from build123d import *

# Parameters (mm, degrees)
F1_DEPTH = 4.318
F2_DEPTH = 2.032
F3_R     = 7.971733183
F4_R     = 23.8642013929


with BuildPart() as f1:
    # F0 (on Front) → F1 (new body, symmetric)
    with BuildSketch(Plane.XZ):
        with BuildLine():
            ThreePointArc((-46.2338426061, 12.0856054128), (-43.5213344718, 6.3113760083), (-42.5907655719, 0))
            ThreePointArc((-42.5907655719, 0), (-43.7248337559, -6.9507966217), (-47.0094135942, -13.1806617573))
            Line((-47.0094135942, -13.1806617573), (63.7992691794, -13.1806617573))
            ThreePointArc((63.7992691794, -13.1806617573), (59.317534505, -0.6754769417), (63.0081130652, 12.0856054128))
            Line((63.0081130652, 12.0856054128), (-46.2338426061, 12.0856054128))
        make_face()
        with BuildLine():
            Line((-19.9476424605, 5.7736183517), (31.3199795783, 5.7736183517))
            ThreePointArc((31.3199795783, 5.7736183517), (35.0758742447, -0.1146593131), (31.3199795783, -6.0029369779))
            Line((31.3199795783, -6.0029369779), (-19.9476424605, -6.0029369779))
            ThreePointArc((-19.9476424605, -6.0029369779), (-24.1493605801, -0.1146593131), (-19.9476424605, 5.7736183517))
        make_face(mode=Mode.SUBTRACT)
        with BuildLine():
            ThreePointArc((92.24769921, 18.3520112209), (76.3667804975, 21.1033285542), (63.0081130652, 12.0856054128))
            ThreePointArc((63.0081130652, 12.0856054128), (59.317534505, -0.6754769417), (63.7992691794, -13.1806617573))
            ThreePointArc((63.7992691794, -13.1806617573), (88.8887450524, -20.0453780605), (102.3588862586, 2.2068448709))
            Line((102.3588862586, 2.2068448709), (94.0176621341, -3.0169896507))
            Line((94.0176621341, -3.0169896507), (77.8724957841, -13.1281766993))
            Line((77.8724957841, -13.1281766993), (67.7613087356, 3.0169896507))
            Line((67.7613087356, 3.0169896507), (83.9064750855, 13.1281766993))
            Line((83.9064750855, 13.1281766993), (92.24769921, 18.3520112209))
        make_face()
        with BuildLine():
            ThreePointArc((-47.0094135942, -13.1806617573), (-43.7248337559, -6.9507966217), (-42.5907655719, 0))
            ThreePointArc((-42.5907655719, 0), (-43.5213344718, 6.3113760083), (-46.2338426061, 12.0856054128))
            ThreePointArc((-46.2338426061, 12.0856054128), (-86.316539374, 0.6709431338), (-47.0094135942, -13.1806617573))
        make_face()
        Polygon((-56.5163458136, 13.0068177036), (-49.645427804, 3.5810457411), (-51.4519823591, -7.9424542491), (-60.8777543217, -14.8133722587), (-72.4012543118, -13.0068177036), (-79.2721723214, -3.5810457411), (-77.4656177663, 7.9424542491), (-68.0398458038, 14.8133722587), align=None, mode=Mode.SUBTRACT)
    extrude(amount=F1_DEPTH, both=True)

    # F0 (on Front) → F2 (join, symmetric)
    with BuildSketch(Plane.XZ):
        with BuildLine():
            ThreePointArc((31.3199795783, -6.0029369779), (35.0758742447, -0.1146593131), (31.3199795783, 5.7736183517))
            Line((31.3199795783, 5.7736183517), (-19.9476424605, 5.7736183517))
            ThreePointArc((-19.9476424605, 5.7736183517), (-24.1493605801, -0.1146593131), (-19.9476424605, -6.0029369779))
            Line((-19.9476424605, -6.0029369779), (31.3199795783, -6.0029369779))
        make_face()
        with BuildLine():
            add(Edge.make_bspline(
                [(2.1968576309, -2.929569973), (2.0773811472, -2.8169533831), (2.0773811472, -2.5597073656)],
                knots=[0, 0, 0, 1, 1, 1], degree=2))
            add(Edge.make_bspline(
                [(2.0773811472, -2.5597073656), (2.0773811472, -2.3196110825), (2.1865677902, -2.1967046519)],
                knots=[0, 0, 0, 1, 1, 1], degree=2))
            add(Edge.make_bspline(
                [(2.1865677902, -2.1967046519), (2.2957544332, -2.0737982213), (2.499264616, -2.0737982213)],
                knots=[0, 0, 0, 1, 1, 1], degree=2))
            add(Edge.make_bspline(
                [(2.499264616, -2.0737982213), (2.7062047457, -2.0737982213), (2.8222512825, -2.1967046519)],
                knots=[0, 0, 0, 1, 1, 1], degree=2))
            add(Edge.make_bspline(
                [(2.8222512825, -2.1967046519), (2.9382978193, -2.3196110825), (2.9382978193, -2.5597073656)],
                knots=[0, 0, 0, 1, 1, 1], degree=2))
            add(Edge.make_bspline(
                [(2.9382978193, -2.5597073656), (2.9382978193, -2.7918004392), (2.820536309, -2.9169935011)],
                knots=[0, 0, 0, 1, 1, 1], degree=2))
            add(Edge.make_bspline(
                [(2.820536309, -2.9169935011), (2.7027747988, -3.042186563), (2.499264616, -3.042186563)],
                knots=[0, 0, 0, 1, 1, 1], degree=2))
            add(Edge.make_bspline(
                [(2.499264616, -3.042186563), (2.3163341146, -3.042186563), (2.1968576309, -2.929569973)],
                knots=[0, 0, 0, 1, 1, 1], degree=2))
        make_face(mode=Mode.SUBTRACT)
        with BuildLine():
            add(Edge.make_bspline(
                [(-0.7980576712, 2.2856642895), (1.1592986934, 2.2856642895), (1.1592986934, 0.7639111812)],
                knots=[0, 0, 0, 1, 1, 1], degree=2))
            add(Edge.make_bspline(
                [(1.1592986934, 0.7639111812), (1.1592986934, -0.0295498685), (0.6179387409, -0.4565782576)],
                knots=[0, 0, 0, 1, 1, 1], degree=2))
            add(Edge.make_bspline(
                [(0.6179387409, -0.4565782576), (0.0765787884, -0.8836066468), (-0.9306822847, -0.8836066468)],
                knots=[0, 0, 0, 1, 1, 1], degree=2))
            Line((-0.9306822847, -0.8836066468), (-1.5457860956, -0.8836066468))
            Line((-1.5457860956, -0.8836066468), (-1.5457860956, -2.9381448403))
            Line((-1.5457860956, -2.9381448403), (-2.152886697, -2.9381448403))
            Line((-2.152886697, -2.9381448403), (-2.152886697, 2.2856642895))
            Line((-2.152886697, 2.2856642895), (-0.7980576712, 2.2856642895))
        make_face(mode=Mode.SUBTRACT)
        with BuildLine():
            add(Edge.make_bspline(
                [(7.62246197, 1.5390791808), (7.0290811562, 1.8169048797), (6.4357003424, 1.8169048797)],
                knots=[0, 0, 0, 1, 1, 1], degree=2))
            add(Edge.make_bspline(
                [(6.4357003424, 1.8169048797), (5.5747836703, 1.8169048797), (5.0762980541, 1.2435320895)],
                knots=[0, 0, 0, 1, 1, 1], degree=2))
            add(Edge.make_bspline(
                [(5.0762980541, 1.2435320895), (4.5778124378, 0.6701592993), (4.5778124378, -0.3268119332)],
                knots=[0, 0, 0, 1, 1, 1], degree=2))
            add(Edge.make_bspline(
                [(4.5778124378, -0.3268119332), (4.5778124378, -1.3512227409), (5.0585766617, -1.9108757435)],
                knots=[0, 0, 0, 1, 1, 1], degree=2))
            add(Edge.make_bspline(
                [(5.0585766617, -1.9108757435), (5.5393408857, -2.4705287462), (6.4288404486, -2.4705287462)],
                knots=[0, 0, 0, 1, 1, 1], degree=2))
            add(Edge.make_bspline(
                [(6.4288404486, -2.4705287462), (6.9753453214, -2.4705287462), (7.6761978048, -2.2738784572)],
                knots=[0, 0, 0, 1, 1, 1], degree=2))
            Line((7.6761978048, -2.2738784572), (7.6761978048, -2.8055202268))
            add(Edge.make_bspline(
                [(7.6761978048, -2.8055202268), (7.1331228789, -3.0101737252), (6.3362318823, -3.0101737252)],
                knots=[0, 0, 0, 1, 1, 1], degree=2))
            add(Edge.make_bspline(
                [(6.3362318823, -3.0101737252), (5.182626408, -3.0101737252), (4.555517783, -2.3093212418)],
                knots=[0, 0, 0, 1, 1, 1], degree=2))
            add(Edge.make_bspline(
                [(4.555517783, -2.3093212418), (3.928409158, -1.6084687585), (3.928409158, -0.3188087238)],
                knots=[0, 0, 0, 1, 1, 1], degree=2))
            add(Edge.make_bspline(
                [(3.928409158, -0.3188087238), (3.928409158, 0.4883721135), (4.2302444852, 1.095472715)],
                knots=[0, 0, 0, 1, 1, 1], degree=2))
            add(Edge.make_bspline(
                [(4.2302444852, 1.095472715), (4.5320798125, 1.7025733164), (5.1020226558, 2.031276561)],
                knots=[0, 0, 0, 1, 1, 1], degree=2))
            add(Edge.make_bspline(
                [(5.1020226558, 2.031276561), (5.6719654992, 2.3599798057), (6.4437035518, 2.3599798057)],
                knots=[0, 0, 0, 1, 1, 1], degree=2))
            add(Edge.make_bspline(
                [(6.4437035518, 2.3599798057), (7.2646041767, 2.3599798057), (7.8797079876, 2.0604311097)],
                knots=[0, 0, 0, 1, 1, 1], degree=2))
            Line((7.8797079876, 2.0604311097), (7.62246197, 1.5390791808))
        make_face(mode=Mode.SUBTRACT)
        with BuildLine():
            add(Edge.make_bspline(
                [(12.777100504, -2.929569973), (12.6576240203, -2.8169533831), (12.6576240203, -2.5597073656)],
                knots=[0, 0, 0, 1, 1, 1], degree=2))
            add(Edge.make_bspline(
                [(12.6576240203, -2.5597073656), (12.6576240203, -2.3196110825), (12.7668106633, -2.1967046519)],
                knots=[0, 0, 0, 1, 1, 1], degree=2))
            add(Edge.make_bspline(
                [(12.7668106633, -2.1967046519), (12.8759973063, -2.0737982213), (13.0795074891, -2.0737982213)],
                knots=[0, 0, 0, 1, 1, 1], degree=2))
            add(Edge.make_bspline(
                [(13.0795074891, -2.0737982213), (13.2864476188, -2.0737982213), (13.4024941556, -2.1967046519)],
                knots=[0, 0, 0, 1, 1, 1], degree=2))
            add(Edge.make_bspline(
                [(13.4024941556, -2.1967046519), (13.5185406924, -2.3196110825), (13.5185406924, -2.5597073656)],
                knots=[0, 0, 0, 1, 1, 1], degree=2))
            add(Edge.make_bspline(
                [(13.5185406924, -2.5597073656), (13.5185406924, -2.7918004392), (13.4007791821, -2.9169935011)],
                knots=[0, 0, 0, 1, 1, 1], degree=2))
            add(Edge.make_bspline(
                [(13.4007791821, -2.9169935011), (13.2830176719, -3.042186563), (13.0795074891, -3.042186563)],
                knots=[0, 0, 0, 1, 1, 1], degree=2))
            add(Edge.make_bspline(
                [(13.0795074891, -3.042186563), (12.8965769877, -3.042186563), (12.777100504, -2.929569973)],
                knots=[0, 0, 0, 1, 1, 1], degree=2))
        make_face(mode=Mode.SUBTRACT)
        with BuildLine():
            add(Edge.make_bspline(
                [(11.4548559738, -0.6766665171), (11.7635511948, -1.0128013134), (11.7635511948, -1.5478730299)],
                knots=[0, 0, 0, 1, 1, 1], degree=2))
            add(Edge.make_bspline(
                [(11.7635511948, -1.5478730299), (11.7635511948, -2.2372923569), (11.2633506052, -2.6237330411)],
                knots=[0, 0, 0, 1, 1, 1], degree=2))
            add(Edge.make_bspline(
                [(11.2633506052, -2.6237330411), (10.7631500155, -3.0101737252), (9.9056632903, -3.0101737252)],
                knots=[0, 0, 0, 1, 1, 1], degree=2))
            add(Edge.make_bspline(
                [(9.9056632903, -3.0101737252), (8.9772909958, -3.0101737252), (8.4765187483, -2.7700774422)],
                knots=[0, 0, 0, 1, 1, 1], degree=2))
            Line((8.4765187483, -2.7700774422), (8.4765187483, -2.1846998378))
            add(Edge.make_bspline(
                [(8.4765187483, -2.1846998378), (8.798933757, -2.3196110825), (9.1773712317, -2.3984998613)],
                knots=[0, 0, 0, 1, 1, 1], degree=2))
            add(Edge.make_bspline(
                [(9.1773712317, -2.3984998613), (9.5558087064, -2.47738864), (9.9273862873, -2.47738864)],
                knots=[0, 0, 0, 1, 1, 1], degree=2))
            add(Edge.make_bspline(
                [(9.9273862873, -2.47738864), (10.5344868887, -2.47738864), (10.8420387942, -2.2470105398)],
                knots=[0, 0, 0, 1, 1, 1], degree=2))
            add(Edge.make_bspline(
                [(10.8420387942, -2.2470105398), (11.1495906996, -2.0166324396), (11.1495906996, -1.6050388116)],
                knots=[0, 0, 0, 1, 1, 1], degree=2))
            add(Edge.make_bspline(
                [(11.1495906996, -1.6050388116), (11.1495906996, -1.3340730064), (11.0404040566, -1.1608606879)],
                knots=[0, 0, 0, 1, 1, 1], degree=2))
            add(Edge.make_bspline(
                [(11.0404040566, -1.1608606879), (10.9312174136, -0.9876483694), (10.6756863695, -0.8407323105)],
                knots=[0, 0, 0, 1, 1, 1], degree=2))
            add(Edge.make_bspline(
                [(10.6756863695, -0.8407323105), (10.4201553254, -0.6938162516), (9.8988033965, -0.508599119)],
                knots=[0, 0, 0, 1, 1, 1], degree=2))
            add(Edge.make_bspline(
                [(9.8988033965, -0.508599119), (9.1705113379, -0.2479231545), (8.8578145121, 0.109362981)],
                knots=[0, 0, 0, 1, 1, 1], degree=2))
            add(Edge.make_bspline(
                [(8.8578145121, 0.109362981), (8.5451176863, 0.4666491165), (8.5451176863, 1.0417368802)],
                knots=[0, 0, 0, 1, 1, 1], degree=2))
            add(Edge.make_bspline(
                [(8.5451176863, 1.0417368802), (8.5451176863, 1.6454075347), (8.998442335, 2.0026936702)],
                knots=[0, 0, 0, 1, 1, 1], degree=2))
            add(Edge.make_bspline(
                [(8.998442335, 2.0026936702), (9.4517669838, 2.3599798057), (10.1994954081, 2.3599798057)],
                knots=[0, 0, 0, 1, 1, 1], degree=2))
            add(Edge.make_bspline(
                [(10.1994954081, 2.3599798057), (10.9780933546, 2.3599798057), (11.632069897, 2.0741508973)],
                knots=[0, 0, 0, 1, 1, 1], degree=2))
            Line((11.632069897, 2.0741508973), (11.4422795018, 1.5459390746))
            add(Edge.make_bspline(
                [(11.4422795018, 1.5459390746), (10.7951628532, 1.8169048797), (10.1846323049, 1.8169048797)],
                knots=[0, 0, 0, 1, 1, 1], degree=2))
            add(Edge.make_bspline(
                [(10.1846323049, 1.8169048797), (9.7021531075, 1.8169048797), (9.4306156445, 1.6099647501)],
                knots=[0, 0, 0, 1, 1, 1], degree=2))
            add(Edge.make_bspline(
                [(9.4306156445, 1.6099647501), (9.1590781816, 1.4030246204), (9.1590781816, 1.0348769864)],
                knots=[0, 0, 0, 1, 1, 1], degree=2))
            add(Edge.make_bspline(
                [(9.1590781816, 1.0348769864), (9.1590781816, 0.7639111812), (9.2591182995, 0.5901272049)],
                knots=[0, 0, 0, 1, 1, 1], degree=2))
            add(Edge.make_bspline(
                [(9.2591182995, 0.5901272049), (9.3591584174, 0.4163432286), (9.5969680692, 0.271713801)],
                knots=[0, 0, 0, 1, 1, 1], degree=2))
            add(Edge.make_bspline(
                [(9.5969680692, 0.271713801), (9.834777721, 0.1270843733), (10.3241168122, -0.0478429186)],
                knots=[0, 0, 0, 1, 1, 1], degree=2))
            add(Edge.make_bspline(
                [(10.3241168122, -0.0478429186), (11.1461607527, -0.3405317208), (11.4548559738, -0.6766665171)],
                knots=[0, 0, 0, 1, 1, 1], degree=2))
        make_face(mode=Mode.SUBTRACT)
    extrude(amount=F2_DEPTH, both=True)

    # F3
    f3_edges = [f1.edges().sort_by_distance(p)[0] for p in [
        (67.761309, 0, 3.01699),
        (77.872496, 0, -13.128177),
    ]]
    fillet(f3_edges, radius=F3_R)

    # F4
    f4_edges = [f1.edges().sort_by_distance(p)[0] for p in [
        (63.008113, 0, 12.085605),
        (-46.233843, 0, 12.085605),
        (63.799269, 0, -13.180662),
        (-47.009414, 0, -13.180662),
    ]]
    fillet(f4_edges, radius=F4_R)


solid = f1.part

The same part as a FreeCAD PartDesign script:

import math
import FreeCAD as App
import Part
import Sketcher
Q = App.Units.Quantity


def edges_at(feature, points):
    """Names of the edges that pass closest to the given points."""
    edges = feature.Shape.Edges
    near = lambda p: min(range(len(edges)), key=lambda i: edges[i].distToShape(Part.Vertex(*p))[0])
    return sorted({f"Edge{near(p) + 1}" for p in points})


def add_polygon(sketch, points):
    """Adds a closed chain of lines whose ends are joined by coincident constraints."""
    first, n = sketch.GeometryCount, len(points)
    for a, b in zip(points, points[1:] + points[:1]):
        sketch.addGeometry(Part.LineSegment(App.Vector(*a, 0), App.Vector(*b, 0)), False)
    for i in range(n):
        sketch.addConstraint(Sketcher.Constraint("Coincident", first + i, 2, first + (i + 1) % n, 1))

doc = App.newDocument("Part")
params = doc.addObject("Spreadsheet::Sheet", "Params")
for row, (alias, value) in enumerate([
    ("sketch1_length", "0.75 in"),
    ("pad1_length", "0.34 in"),
    ("pad2_length", "0.16 in"),
    ("fillet_radius", "7.971733 mm"),
    ("fillet2_radius", "23.864201 mm"),
], start=1):
    params.set(f"A{row}", alias)
    params.set(f"B{row}", "=" + value)
    params.setAlias(f"B{row}", alias)

body = doc.addObject("PartDesign::Body", "Body")

# Sketch on XZ plane
sketch1 = body.newObject("Sketcher::SketchObject", "Sketch")
sketch1.AttachmentSupport = (doc.getObject("XZ_Plane"), [""])
sketch1.MapMode = "FlatFace"
sketch1.addGeometry(Part.LineSegment(App.Vector(-47, -13, 0), App.Vector(64, -13, 0)), False)  # 0
sketch1.addGeometry(Part.ArcOfCircle(Part.Circle(App.Vector(81, 0, 0), App.Vector(0, 0, 1), 22), math.radians(-142), math.radians(6)), False)  # 1
sketch1.addGeometry(Part.LineSegment(App.Vector(102, 2, 0), App.Vector(94, -3, 0)), False)  # 2
sketch1.addGeometry(Part.LineSegment(App.Vector(94, -3, 0), App.Vector(78, -13, 0)), False)  # 3
sketch1.addGeometry(Part.LineSegment(App.Vector(78, -13, 0), App.Vector(68, 3, 0)), False)  # 4
sketch1.addGeometry(Part.LineSegment(App.Vector(68, 3, 0), App.Vector(84, 13, 0)), False)  # 5
sketch1.addGeometry(Part.LineSegment(App.Vector(84, 13, 0), App.Vector(92, 18, 0)), False)  # 6
sketch1.addGeometry(Part.ArcOfCircle(Part.Circle(App.Vector(81, 0, 0), App.Vector(0, 0, 1), 22), math.radians(58), math.radians(146)), False)  # 7
sketch1.addGeometry(Part.LineSegment(App.Vector(63, 12, 0), App.Vector(-46, 12, 0)), False)  # 8
sketch1.addGeometry(Part.ArcOfCircle(Part.Circle(App.Vector(-64, 0, 0), App.Vector(0, 0, 1), 22), math.radians(34), math.radians(323)), False)  # 9
sketch1.addGeometry(Part.ArcOfCircle(Part.Circle(App.Vector(-18, 0, 0), App.Vector(0, 0, 1), 6), math.radians(109), math.radians(251)), False)  # 10
sketch1.addGeometry(Part.LineSegment(App.Vector(-20, 6, 0), App.Vector(31, 6, 0)), False)  # 11
sketch1.addGeometry(Part.ArcOfCircle(Part.Circle(App.Vector(29, 0, 0), App.Vector(0, 0, 1), 6), math.radians(-65), math.radians(65)), False)  # 12
sketch1.addGeometry(Part.LineSegment(App.Vector(31, -6, 0), App.Vector(-20, -6, 0)), False)  # 13
add_polygon(sketch1, [(-68, 15), (-57, 13), (-50, 4), (-51, -8), (-61, -15), (-72, -13), (-79, -4), (-77, 8)])  # lines 14-21
sketch1.addConstraint(Sketcher.Constraint("Coincident", 0, 2, 1, 1))
sketch1.addConstraint(Sketcher.Constraint("Coincident", 1, 2, 2, 1))
sketch1.addConstraint(Sketcher.Constraint("Coincident", 2, 2, 3, 1))
sketch1.addConstraint(Sketcher.Constraint("Coincident", 3, 2, 4, 1))
sketch1.addConstraint(Sketcher.Constraint("Coincident", 4, 2, 5, 1))
sketch1.addConstraint(Sketcher.Constraint("Coincident", 5, 2, 6, 1))
sketch1.addConstraint(Sketcher.Constraint("Coincident", 6, 2, 7, 1))
sketch1.addConstraint(Sketcher.Constraint("Coincident", 7, 2, 8, 1))
sketch1.addConstraint(Sketcher.Constraint("Coincident", 8, 2, 9, 1))
sketch1.addConstraint(Sketcher.Constraint("Coincident", 9, 2, 0, 1))
sketch1.addConstraint(Sketcher.Constraint("Coincident", 10, 1, 11, 1))
sketch1.addConstraint(Sketcher.Constraint("Coincident", 11, 2, 12, 2))
sketch1.addConstraint(Sketcher.Constraint("Coincident", 12, 1, 13, 1))
sketch1.addConstraint(Sketcher.Constraint("Coincident", 13, 2, 10, 2))
sketch1.addConstraint(Sketcher.Constraint("Horizontal", 0))
sketch1.addConstraint(Sketcher.Constraint("Horizontal", 8))
sketch1.addConstraint(Sketcher.Constraint("Horizontal", 11))
sketch1.addConstraint(Sketcher.Constraint("Horizontal", 13))
sketch1.addConstraint(Sketcher.Constraint("Coincident", 7, 3, 1, 3))
sketch1.addConstraint(Sketcher.Constraint("Equal", 1, 7))
sketch1.addConstraint(Sketcher.Constraint("PointOnObject", 1, 3, -1))
sketch1.addConstraint(Sketcher.Constraint("PointOnObject", 9, 3, -1))
sketch1.addConstraint(Sketcher.Constraint("Parallel", 2, 3))
sketch1.addConstraint(Sketcher.Constraint("Perpendicular", 3, 4))
sketch1.addConstraint(Sketcher.Constraint("Perpendicular", 4, 5))
sketch1.addConstraint(Sketcher.Constraint("Parallel", 5, 6))
sketch1.addConstraint(Sketcher.Constraint("Perpendicular", 14, 16))
sketch1.addConstraint(Sketcher.Constraint("Perpendicular", 15, 17))
sketch1.addConstraint(Sketcher.Constraint("Perpendicular", 16, 18))
sketch1.addConstraint(Sketcher.Constraint("Perpendicular", 17, 19))
sketch1.addConstraint(Sketcher.Constraint("Perpendicular", 18, 20))
sketch1.addConstraint(Sketcher.Constraint("Perpendicular", 19, 21))
sketch1.addConstraint(Sketcher.Constraint("Horizontal", 10, 3, 12, 3))
sketch1.addConstraint(Sketcher.Constraint("Vertical", 11, 2, 12, 1))
sketch1.addConstraint(Sketcher.Constraint("Equal", 3, 4))
sketch1.addConstraint(Sketcher.Constraint("Equal", 4, 5))
sketch1.addConstraint(Sketcher.Constraint("Equal", 2, 6))
sketch1.addConstraint(Sketcher.Constraint("Equal", 14, 15))
sketch1.addConstraint(Sketcher.Constraint("Equal", 15, 16))
sketch1.addConstraint(Sketcher.Constraint("Equal", 16, 17))
sketch1.addConstraint(Sketcher.Constraint("Equal", 17, 18))
sketch1.addConstraint(Sketcher.Constraint("Equal", 18, 19))
sketch1.addConstraint(Sketcher.Constraint("Distance", 3, Q("0.75 in")))
sketch1.addConstraint(Sketcher.Constraint("Radius", 12, Q("6.4936 mm")))
sketch1.addConstraint(Sketcher.Constraint("Radius", 10, Q("6.226768 mm")))
sketch1.addConstraint(Sketcher.Constraint("Radius", 1, Q("21.582524 mm")))
sketch1.addConstraint(Sketcher.Constraint("Radius", 9, Q("21.868034 mm")))
sketch1.addConstraint(Sketcher.Constraint("DistanceX", 9, 3, -1, 1, Q("64.4588 mm")))
sketch1.addConstraint(Sketcher.Constraint("DistanceX", -1, 1, 6, 2, Q("92.247699 mm")))
sketch1.addConstraint(Sketcher.Constraint("DistanceX", 1, 3, 1, 2, Q("21.469401 mm")))
sketch1.addConstraint(Sketcher.Constraint("DistanceY", 2, 2, 6, 2, Q("21.369001 mm")))
sketch1.addConstraint(Sketcher.Constraint("DistanceX", 8, 2, 10, 1, Q("26.2862 mm")))
sketch1.addConstraint(Sketcher.Constraint("DistanceY", 10, 1, 14, 2, Q("7.233199 mm")))
sketch1.addConstraint(Sketcher.Constraint("DistanceY", 16, 2, 15, 2, Q("11.5235 mm")))
sketch1.addConstraint(Sketcher.Constraint("Distance", 14, Q("11.664248 mm")))
sketch1.addConstraint(Sketcher.Constraint("DistanceX", 0, 1, 0, 2, Q("110.808683 mm")))
sketch1.addConstraint(Sketcher.Constraint("DistanceX", 8, 2, 8, 1, Q("109.241956 mm")))
sketch1.addConstraint(Sketcher.Constraint("DistanceX", 11, 1, 11, 2, Q("51.267622 mm")))
sketch1.addConstraint(Sketcher.Constraint("DistanceY", 10, 3, -1, 1, Q("0.114659 mm")))
sketch1.addConstraint(Sketcher.Constraint("DistanceY", -1, 1, 10, 1, Q("5.773618 mm")))
sketch1.addConstraint(Sketcher.Constraint("DistanceY", 15, 2, 8, 2, Q("8.50456 mm")))
sketch1.addConstraint(Sketcher.Constraint("DistanceX", 16, 2, 9, 2, Q("4.442569 mm")))
sketch1.setExpression("Constraints[50]", "Params.sketch1_length")
pad1 = body.newObject("PartDesign::Pad", "Pad")
pad1.Profile = sketch1
pad1.setExpression("Length", "Params.pad1_length")
pad1.Midplane = True

# Sketch on XZ plane
sketch2 = body.newObject("Sketcher::SketchObject", "Sketch001")
sketch2.AttachmentSupport = (doc.getObject("XZ_Plane"), [""])
sketch2.MapMode = "FlatFace"
sketch2.addGeometry(Part.ArcOfCircle(Part.Circle(App.Vector(28.582274, -0.114659, 0), App.Vector(0, 0, 1), 6.4936), math.radians(-65.064319), math.radians(65.064319)), False)
sketch2.addGeometry(Part.LineSegment(App.Vector(31.31998, 5.773618, 0), App.Vector(-19.947642, 5.773618, 0)), False)
sketch2.addGeometry(Part.ArcOfCircle(Part.Circle(App.Vector(-17.922592, -0.114659, 0), App.Vector(0, 0, 1), 6.226768), math.radians(108.978714), math.radians(251.021286)), False)
sketch2.addGeometry(Part.LineSegment(App.Vector(-19.947642, -6.002937, 0), App.Vector(31.31998, -6.002937, 0)), False)
sketch2.addGeometry(Part.BSplineCurve([App.Vector(2.820536, -2.916994, 0), App.Vector(2.702775, -3.042187, 0), App.Vector(2.316334, -3.042187, 0), App.Vector(2.196858, -2.92957, 0)], [3, 1, 3], [0, 1, 1.898876405], False, 2, [1, 1, 1, 1], False), False)
sketch2.addGeometry(Part.BSplineCurve([App.Vector(2.196858, -2.92957, 0), App.Vector(2.077381, -2.816953, 0), App.Vector(2.077381, -2.319611, 0), App.Vector(2.295754, -2.073798, 0), App.Vector(2.706205, -2.073798, 0), App.Vector(2.938298, -2.319611, 0), App.Vector(2.938298, -2.7918, 0), App.Vector(2.820536, -2.916994, 0)], [3, 1, 1, 1, 1, 1, 3], [0, 1, 1.933333334, 2.866666667, 3.815730338, 4.764794009, 5.682222224], False, 2, [1, 1, 1, 1, 1, 1, 1, 1], False), False)
sketch2.addGeometry(Part.BSplineCurve([App.Vector(13.400779, -2.916994, 0), App.Vector(13.283018, -3.042187, 0), App.Vector(12.896577, -3.042187, 0), App.Vector(12.777101, -2.92957, 0)], [3, 1, 3], [0, 1, 1.898876405], False, 2, [1, 1, 1, 1], False), False)
sketch2.addGeometry(Part.BSplineCurve([App.Vector(12.777101, -2.92957, 0), App.Vector(12.657624, -2.816953, 0), App.Vector(12.657624, -2.319611, 0), App.Vector(12.875997, -2.073798, 0), App.Vector(13.286448, -2.073798, 0), App.Vector(13.518541, -2.319611, 0), App.Vector(13.518541, -2.7918, 0), App.Vector(13.400779, -2.916994, 0)], [3, 1, 1, 1, 1, 1, 3], [0, 1, 1.933333334, 2.866666667, 3.815730338, 4.764794009, 5.682222224], False, 2, [1, 1, 1, 1, 1, 1, 1, 1], False), False)
sketch2.addGeometry(Part.LineSegment(App.Vector(-2.152887, 2.285664, 0), App.Vector(-0.798058, 2.285664, 0)), False)
sketch2.addGeometry(Part.BSplineCurve([App.Vector(-0.798058, 2.285664, 0), App.Vector(1.159299, 2.285664, 0), App.Vector(1.159299, -0.02955, 0), App.Vector(0.617939, -0.456578, 0)], [3, 1, 3], [0, 1, 1.521412472], False, 2, [1, 1, 1, 1], False), False)
sketch2.addGeometry(Part.BSplineCurve([App.Vector(0.617939, -0.456578, 0), App.Vector(0.076579, -0.883607, 0), App.Vector(-0.930682, -0.883607, 0)], [3, 3], [0, 1], False, 2, [1, 1, 1], False), False)
sketch2.addGeometry(Part.LineSegment(App.Vector(-0.930682, -0.883607, 0), App.Vector(-1.545786, -0.883607, 0)), False)
sketch2.addGeometry(Part.LineSegment(App.Vector(-1.545786, -0.883607, 0), App.Vector(-1.545786, -2.938145, 0)), False)
sketch2.addGeometry(Part.LineSegment(App.Vector(-1.545786, -2.938145, 0), App.Vector(-2.152887, -2.938145, 0)), False)
sketch2.addGeometry(Part.LineSegment(App.Vector(-2.152887, -2.938145, 0), App.Vector(-2.152887, 2.285664, 0)), False)
sketch2.addGeometry(Part.LineSegment(App.Vector(7.879708, 2.060431, 0), App.Vector(7.622462, 1.539079, 0)), False)
sketch2.addGeometry(Part.BSplineCurve([App.Vector(7.622462, 1.539079, 0), App.Vector(7.029081, 1.816905, 0), App.Vector(5.574784, 1.816905, 0), App.Vector(5.076298, 1.243532, 0)], [3, 1, 3], [0, 1, 2.450867052], False, 2, [1, 1, 1, 1], False), False)
sketch2.addGeometry(Part.BSplineCurve([App.Vector(5.076298, 1.243532, 0), App.Vector(4.577812, 0.670159, 0), App.Vector(4.577812, -1.351223, 0), App.Vector(5.058577, -1.910876, 0)], [3, 1, 3], [0, 1, 2.027522936], False, 2, [1, 1, 1, 1], False), False)
sketch2.addGeometry(Part.BSplineCurve([App.Vector(5.058577, -1.910876, 0), App.Vector(5.539341, -2.470529, 0), App.Vector(6.975345, -2.470529, 0), App.Vector(7.676198, -2.273878, 0)], [3, 1, 3], [0, 1, 1.614395887], False, 2, [1, 1, 1, 1], False), False)
sketch2.addGeometry(Part.LineSegment(App.Vector(7.676198, -2.273878, 0), App.Vector(7.676198, -2.80552, 0)), False)
sketch2.addGeometry(Part.BSplineCurve([App.Vector(7.676198, -2.80552, 0), App.Vector(7.133123, -3.010174, 0), App.Vector(5.182626, -3.010174, 0), App.Vector(4.555518, -2.309321, 0)], [3, 1, 3], [0, 1, 2.447632712], False, 2, [1, 1, 1, 1], False), False)
sketch2.addGeometry(Part.BSplineCurve([App.Vector(4.555518, -2.309321, 0), App.Vector(3.928409, -1.608469, 0), App.Vector(3.928409, 0.488372, 0), App.Vector(4.230244, 1.095473, 0)], [3, 1, 3], [0, 1, 1.625886525], False, 2, [1, 1, 1, 1], False), False)
sketch2.addGeometry(Part.BSplineCurve([App.Vector(4.230244, 1.095473, 0), App.Vector(4.53208, 1.702573, 0), App.Vector(5.102023, 2.031277, 0)], [3, 3], [0, 1], False, 2, [1, 1, 1], False), False)
sketch2.addGeometry(Part.BSplineCurve([App.Vector(5.102023, 2.031277, 0), App.Vector(5.671965, 2.35998, 0), App.Vector(7.264604, 2.35998, 0), App.Vector(7.879708, 2.060431, 0)], [3, 1, 3], [0, 1, 2.063703704], False, 2, [1, 1, 1, 1], False), False)
sketch2.addGeometry(Part.BSplineCurve([App.Vector(10.324117, -0.047843, 0), App.Vector(11.146161, -0.340532, 0), App.Vector(11.454856, -0.676667, 0)], [3, 3], [0, 1], False, 2, [1, 1, 1], False), False)
sketch2.addGeometry(Part.BSplineCurve([App.Vector(11.454856, -0.676667, 0), App.Vector(11.763551, -1.012801, 0), App.Vector(11.763551, -2.237292, 0), App.Vector(11.263351, -2.623733, 0)], [3, 1, 3], [0, 1, 2.288461538], False, 2, [1, 1, 1, 1], False), False)
sketch2.addGeometry(Part.BSplineCurve([App.Vector(11.263351, -2.623733, 0), App.Vector(10.76315, -3.010174, 0), App.Vector(8.977291, -3.010174, 0), App.Vector(8.476519, -2.770077, 0)], [3, 1, 3], [0, 1, 2.082666667], False, 2, [1, 1, 1, 1], False), False)
sketch2.addGeometry(Part.LineSegment(App.Vector(8.476519, -2.770077, 0), App.Vector(8.476519, -2.1847, 0)), False)
sketch2.addGeometry(Part.BSplineCurve([App.Vector(8.476519, -2.1847, 0), App.Vector(8.798934, -2.319611, 0), App.Vector(9.177371, -2.3985, 0)], [3, 3], [0, 1], False, 2, [1, 1, 1], False), False)
sketch2.addGeometry(Part.BSplineCurve([App.Vector(9.177371, -2.3985, 0), App.Vector(9.555809, -2.477389, 0), App.Vector(10.534487, -2.477389, 0), App.Vector(10.842039, -2.247011, 0)], [3, 1, 3], [0, 1, 2.633846154], False, 2, [1, 1, 1, 1], False), False)
sketch2.addGeometry(Part.BSplineCurve([App.Vector(10.842039, -2.247011, 0), App.Vector(11.149591, -2.016632, 0), App.Vector(11.149591, -1.334073, 0), App.Vector(10.931217, -0.987648, 0), App.Vector(10.420155, -0.693816, 0), App.Vector(9.898803, -0.508599, 0)], [3, 1, 1, 1, 3], [0, 1, 1.658333334, 2.316666667, 2.975000001], False, 2, [1, 1, 1, 1, 1, 1], False), False)
sketch2.addGeometry(Part.BSplineCurve([App.Vector(9.898803, -0.508599, 0), App.Vector(9.170511, -0.247923, 0), App.Vector(8.545118, 0.466649, 0), App.Vector(8.545118, 1.645408, 0), App.Vector(8.998442, 2.002694, 0)], [3, 1, 1, 3], [0, 1, 2, 3.049701789], False, 2, [1, 1, 1, 1, 1], False), False)
sketch2.addGeometry(Part.BSplineCurve([App.Vector(8.998442, 2.002694, 0), App.Vector(9.451767, 2.35998, 0), App.Vector(10.978093, 2.35998, 0), App.Vector(11.63207, 2.074151, 0)], [3, 1, 3], [0, 1, 2.041284404], False, 2, [1, 1, 1, 1], False), False)
sketch2.addGeometry(Part.LineSegment(App.Vector(11.63207, 2.074151, 0), App.Vector(11.44228, 1.545939, 0)), False)
sketch2.addGeometry(Part.BSplineCurve([App.Vector(11.44228, 1.545939, 0), App.Vector(10.795163, 1.816905, 0), App.Vector(9.702153, 1.816905, 0), App.Vector(9.430616, 1.609965, 0)], [3, 1, 3], [0, 1, 1.790262172], False, 2, [1, 1, 1, 1], False), False)
sketch2.addGeometry(Part.BSplineCurve([App.Vector(9.430616, 1.609965, 0), App.Vector(9.159078, 1.403025, 0), App.Vector(9.159078, 0.763911, 0), App.Vector(9.359158, 0.416343, 0), App.Vector(9.596968, 0.271714, 0)], [3, 1, 1, 3], [0, 1, 1.736024845, 2.47204969], False, 2, [1, 1, 1, 1, 1], False), False)
sketch2.addGeometry(Part.BSplineCurve([App.Vector(9.596968, 0.271714, 0), App.Vector(9.834778, 0.127084, 0), App.Vector(10.324117, -0.047843, 0)], [3, 3], [0, 1], False, 2, [1, 1, 1], False), False)
sketch2.addConstraint(Sketcher.Constraint("Block", 4))
sketch2.addConstraint(Sketcher.Constraint("Block", 5))
sketch2.addConstraint(Sketcher.Constraint("Block", 6))
sketch2.addConstraint(Sketcher.Constraint("Block", 7))
sketch2.addConstraint(Sketcher.Constraint("Block", 9))
sketch2.addConstraint(Sketcher.Constraint("Block", 10))
sketch2.addConstraint(Sketcher.Constraint("Block", 16))
sketch2.addConstraint(Sketcher.Constraint("Block", 17))
sketch2.addConstraint(Sketcher.Constraint("Block", 18))
sketch2.addConstraint(Sketcher.Constraint("Block", 20))
sketch2.addConstraint(Sketcher.Constraint("Block", 21))
sketch2.addConstraint(Sketcher.Constraint("Block", 22))
sketch2.addConstraint(Sketcher.Constraint("Block", 23))
sketch2.addConstraint(Sketcher.Constraint("Block", 24))
sketch2.addConstraint(Sketcher.Constraint("Block", 25))
sketch2.addConstraint(Sketcher.Constraint("Block", 26))
sketch2.addConstraint(Sketcher.Constraint("Block", 28))
sketch2.addConstraint(Sketcher.Constraint("Block", 29))
sketch2.addConstraint(Sketcher.Constraint("Block", 30))
sketch2.addConstraint(Sketcher.Constraint("Block", 31))
sketch2.addConstraint(Sketcher.Constraint("Block", 32))
sketch2.addConstraint(Sketcher.Constraint("Block", 34))
sketch2.addConstraint(Sketcher.Constraint("Block", 35))
sketch2.addConstraint(Sketcher.Constraint("Block", 36))
sketch2.addConstraint(Sketcher.Constraint("Coincident", 0, 2, 1, 1))
sketch2.addConstraint(Sketcher.Constraint("Coincident", 1, 2, 2, 1))
sketch2.addConstraint(Sketcher.Constraint("Coincident", 2, 2, 3, 1))
sketch2.addConstraint(Sketcher.Constraint("Coincident", 3, 2, 0, 1))
sketch2.addConstraint(Sketcher.Constraint("Coincident", 8, 2, 9, 1))
sketch2.addConstraint(Sketcher.Constraint("Coincident", 10, 2, 11, 1))
sketch2.addConstraint(Sketcher.Constraint("Coincident", 11, 2, 12, 1))
sketch2.addConstraint(Sketcher.Constraint("Coincident", 12, 2, 13, 1))
sketch2.addConstraint(Sketcher.Constraint("Coincident", 13, 2, 14, 1))
sketch2.addConstraint(Sketcher.Constraint("Coincident", 14, 2, 8, 1))
sketch2.addConstraint(Sketcher.Constraint("Coincident", 15, 2, 16, 1))
sketch2.addConstraint(Sketcher.Constraint("Coincident", 18, 2, 19, 1))
sketch2.addConstraint(Sketcher.Constraint("Coincident", 19, 2, 20, 1))
sketch2.addConstraint(Sketcher.Constraint("Coincident", 23, 2, 15, 1))
sketch2.addConstraint(Sketcher.Constraint("Coincident", 26, 2, 27, 1))
sketch2.addConstraint(Sketcher.Constraint("Coincident", 27, 2, 28, 1))
sketch2.addConstraint(Sketcher.Constraint("Coincident", 32, 2, 33, 1))
sketch2.addConstraint(Sketcher.Constraint("Coincident", 33, 2, 34, 1))
sketch2.addConstraint(Sketcher.Constraint("Horizontal", 1))
sketch2.addConstraint(Sketcher.Constraint("Horizontal", 3))
sketch2.addConstraint(Sketcher.Constraint("Horizontal", 8))
sketch2.addConstraint(Sketcher.Constraint("Horizontal", 11))
sketch2.addConstraint(Sketcher.Constraint("Vertical", 12))
sketch2.addConstraint(Sketcher.Constraint("Horizontal", 13))
sketch2.addConstraint(Sketcher.Constraint("Vertical", 14))
sketch2.addConstraint(Sketcher.Constraint("Horizontal", 0, 3, 2, 3))
sketch2.addConstraint(Sketcher.Constraint("Vertical", 1, 2, 2, 2))
sketch2.addConstraint(Sketcher.Constraint("Radius", 0, Q("6.4936 mm")))
sketch2.addConstraint(Sketcher.Constraint("Radius", 2, Q("6.226768 mm")))
sketch2.addConstraint(Sketcher.Constraint("DistanceX", 13, 2, 13, 1, Q("0.607101 mm")))
sketch2.addConstraint(Sketcher.Constraint("DistanceX", 8, 1, 8, 2, Q("1.354829 mm")))
sketch2.addConstraint(Sketcher.Constraint("DistanceY", 12, 2, 12, 1, Q("2.054538 mm")))
sketch2.addConstraint(Sketcher.Constraint("DistanceY", 2, 2, 8, 2, Q("8.288601 mm")))
sketch2.addConstraint(Sketcher.Constraint("DistanceX", 1, 2, 1, 1, Q("51.267622 mm")))
sketch2.addConstraint(Sketcher.Constraint("DistanceY", 0, 3, -1, 1, Q("0.114659 mm")))
sketch2.addConstraint(Sketcher.Constraint("DistanceX", -1, 1, 0, 2, Q("31.31998 mm")))
pad2 = body.newObject("PartDesign::Pad", "Pad001")
pad2.Profile = sketch2
pad2.setExpression("Length", "Params.pad2_length")
pad2.Midplane = True
doc.recompute()

fillet = body.newObject("PartDesign::Fillet", "Fillet")
fillet.Base = (pad2, edges_at(pad2, [(67.761, 0, 3.017), (77.872, 0, -13.128)]))
fillet.setExpression("Radius", "Params.fillet_radius")
doc.recompute()

fillet2 = body.newObject("PartDesign::Fillet", "Fillet001")
fillet2.Base = (fillet, edges_at(fillet, [
    (63.008, 0, 12.086),
    (-46.234, 0, 12.086),
    (63.799, 0, -13.181),
    (-47.009, 0, -13.181),
]))
fillet2.setExpression("Radius", "Params.fillet2_radius")

doc.recompute()
